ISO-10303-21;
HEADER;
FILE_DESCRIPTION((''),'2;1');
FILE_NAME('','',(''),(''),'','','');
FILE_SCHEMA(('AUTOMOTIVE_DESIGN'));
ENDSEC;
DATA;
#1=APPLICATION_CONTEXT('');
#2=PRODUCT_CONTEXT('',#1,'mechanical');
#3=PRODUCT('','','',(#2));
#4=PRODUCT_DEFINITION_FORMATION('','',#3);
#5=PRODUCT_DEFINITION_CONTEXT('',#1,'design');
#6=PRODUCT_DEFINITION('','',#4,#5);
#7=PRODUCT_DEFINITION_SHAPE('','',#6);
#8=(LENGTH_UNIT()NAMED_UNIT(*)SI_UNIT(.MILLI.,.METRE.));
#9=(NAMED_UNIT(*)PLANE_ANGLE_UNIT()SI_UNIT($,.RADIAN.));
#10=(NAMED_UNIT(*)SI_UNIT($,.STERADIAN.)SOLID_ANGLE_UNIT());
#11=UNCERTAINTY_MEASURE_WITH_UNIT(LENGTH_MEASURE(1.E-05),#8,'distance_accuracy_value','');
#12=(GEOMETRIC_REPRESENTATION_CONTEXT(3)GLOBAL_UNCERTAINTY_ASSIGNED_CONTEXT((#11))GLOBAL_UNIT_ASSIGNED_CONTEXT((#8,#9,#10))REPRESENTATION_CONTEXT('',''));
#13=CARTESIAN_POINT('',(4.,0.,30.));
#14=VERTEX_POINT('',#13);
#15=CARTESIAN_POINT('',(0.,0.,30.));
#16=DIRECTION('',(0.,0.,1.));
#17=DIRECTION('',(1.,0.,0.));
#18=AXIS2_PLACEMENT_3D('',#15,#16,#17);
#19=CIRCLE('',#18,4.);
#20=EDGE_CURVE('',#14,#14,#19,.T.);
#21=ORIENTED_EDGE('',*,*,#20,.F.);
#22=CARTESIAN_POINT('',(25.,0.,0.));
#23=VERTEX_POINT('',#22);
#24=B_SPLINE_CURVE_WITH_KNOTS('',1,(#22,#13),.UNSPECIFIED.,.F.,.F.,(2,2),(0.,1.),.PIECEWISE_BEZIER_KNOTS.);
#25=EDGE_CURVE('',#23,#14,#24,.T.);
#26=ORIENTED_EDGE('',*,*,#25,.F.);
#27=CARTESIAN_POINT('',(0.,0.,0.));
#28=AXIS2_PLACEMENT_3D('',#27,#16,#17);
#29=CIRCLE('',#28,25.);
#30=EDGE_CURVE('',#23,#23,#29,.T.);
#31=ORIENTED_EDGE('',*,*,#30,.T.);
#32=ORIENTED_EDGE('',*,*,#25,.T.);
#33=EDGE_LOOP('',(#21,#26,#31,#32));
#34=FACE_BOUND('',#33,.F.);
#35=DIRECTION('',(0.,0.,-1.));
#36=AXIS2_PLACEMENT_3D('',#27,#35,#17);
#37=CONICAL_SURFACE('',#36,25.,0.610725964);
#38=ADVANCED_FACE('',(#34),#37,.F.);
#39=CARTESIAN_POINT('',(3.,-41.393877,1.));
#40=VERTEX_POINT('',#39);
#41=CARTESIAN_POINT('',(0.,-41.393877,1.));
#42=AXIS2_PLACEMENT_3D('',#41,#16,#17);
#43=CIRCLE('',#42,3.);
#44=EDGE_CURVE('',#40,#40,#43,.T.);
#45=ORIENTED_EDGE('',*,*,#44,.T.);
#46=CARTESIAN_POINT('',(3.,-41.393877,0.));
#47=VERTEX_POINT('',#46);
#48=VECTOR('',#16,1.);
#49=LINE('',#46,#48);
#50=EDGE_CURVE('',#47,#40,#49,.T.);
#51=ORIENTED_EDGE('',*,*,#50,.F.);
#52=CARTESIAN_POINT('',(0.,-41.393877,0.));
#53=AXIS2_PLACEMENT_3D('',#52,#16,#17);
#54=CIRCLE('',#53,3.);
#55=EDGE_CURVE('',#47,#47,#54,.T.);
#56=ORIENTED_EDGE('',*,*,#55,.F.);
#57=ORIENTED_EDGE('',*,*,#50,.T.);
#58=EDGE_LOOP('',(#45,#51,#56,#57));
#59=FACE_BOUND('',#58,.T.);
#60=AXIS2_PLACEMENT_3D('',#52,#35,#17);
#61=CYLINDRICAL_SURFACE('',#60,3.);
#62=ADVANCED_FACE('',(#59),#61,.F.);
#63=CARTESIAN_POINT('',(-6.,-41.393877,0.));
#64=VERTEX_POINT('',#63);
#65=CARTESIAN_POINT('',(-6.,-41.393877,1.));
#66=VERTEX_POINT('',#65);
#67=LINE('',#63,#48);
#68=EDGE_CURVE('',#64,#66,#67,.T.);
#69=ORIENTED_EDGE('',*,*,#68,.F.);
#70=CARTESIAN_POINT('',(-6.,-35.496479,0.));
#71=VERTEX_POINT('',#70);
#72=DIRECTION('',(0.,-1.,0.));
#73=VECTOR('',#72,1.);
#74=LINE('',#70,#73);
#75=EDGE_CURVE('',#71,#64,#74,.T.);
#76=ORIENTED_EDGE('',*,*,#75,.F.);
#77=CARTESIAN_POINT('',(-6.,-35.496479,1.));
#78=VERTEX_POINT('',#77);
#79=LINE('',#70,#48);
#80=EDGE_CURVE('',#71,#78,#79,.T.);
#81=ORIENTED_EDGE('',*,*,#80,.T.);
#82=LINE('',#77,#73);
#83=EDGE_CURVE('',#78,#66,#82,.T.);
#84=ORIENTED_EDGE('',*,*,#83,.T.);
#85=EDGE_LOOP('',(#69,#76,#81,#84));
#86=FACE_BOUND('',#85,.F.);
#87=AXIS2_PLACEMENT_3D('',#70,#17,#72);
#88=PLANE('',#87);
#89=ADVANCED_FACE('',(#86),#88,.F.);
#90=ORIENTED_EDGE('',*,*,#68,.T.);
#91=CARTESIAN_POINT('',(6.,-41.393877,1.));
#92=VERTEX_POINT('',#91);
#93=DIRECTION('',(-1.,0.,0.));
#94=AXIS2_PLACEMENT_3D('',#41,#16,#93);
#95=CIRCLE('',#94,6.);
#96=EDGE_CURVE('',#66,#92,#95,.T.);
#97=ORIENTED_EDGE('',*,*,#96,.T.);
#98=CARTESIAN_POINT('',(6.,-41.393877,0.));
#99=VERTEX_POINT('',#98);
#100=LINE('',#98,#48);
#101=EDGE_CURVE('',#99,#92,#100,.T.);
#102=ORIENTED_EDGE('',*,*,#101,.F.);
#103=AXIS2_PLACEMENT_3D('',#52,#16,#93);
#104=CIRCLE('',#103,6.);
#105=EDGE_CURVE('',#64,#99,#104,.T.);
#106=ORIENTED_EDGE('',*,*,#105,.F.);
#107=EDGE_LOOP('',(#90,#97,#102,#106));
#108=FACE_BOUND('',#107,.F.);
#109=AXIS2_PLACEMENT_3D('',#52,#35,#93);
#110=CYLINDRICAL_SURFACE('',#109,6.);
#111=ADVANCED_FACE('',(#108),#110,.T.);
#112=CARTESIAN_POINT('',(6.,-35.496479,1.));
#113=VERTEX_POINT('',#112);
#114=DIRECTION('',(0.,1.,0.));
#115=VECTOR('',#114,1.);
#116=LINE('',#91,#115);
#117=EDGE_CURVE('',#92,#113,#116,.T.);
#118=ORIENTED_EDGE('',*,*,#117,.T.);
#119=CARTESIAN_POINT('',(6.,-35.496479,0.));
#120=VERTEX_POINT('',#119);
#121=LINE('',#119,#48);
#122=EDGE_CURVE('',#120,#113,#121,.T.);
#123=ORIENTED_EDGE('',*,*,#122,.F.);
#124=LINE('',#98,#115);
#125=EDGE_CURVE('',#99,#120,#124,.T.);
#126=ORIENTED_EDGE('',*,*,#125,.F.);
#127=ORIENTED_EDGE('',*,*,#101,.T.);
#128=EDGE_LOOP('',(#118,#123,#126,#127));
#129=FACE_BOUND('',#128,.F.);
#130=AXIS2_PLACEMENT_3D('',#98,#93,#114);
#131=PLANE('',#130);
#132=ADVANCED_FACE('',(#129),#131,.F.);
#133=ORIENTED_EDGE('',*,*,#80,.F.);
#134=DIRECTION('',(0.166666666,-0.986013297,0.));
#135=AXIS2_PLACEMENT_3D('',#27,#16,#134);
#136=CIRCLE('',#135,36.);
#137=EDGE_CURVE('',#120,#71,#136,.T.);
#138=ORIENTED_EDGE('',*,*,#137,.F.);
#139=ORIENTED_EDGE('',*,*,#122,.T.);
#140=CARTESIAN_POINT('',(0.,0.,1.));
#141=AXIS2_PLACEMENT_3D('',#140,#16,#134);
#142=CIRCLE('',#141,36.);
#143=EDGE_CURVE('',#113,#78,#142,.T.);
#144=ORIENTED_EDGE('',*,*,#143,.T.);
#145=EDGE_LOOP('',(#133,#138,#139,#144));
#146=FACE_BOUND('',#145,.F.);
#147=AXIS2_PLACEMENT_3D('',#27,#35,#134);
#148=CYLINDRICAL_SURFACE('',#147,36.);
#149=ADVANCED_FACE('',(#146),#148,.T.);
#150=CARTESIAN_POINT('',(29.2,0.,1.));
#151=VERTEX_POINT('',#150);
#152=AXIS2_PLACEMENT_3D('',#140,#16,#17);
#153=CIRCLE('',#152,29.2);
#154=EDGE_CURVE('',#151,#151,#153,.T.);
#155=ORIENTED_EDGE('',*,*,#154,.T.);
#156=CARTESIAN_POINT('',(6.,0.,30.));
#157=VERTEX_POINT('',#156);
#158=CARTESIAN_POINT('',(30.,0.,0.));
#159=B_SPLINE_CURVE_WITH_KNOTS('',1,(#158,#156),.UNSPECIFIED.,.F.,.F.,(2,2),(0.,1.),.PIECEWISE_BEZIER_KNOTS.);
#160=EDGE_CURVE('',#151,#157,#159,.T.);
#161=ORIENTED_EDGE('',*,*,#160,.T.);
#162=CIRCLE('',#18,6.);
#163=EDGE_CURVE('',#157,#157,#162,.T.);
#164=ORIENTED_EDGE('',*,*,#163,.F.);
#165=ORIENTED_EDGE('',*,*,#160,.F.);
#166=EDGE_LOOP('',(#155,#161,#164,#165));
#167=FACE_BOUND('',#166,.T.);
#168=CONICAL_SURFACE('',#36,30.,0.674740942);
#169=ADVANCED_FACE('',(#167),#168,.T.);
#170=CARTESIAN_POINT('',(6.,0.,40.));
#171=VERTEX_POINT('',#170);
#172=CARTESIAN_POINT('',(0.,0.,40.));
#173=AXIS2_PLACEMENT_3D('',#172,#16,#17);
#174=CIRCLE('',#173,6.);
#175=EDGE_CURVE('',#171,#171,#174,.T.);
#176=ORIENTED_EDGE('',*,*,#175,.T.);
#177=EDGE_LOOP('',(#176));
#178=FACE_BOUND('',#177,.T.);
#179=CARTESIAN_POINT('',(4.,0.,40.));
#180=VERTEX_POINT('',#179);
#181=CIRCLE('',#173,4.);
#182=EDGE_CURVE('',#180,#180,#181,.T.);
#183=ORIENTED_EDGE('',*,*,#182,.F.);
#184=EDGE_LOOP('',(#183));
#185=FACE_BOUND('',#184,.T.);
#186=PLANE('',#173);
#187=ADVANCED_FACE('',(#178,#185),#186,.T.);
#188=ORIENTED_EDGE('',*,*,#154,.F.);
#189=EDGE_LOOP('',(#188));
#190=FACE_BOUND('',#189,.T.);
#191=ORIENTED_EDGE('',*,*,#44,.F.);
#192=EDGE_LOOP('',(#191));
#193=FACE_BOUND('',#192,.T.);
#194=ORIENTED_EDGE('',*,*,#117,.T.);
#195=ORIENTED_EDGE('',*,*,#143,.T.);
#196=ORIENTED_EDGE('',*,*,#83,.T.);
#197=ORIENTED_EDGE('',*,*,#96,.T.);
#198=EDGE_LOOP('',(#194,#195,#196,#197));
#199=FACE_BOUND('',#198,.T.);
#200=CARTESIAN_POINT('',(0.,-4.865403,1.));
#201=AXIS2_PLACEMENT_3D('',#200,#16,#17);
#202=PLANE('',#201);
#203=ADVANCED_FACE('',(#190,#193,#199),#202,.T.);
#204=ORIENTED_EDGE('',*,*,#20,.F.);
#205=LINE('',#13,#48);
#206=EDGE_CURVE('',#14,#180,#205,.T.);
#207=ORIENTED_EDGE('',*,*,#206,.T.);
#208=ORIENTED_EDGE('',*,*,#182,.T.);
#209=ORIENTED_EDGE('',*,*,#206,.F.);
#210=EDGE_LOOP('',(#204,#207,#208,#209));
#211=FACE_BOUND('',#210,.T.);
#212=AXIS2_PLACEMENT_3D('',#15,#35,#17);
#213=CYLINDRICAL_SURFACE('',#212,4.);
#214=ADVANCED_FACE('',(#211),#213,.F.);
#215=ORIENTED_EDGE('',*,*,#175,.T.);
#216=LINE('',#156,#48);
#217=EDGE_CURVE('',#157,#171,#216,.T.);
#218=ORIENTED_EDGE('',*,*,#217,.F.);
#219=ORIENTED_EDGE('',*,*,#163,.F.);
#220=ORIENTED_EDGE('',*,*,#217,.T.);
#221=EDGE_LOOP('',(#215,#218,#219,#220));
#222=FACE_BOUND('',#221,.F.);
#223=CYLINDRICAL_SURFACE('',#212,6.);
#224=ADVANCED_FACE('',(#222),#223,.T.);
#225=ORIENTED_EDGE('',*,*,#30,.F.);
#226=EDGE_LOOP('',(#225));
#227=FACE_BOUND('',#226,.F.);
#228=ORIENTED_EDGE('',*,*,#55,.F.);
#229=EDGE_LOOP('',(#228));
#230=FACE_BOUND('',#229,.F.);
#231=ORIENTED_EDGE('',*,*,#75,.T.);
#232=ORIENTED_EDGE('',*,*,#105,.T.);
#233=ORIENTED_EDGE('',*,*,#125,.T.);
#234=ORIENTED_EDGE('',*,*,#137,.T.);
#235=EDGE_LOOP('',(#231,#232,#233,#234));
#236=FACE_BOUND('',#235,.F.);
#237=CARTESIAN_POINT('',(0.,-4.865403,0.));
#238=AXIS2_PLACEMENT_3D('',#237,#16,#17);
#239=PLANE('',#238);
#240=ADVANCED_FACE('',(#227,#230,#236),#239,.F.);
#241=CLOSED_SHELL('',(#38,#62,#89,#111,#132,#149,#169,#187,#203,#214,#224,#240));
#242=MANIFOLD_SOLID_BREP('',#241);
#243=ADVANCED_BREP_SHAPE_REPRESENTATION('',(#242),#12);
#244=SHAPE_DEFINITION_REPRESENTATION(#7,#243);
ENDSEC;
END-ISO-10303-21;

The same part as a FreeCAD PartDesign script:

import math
import FreeCAD as App
import Part
import Sketcher

V = App.Vector
Q = App.Units.Quantity

doc = App.newDocument("Part")
body = doc.addObject("PartDesign::Body", "Body")

sketch1 = body.newObject("Sketcher::SketchObject", "Sketch")
sketch1.AttachmentSupport = (doc.getObject("XY_Plane"), [""])
sketch1.MapMode = "FlatFace"
sketch1.addGeometry(Part.Circle(V(0, 0, 0), V(0, 0, 1), 30), False)
sketch1.addConstraint(Sketcher.Constraint("Coincident", 0, 3, -1, 1))
sketch1.addConstraint(Sketcher.Constraint("Diameter", 0, Q("60 mm")))

sketch2 = body.newObject("Sketcher::SketchObject", "Sketch001")
sketch2.AttachmentSupport = (doc.getObject("XY_Plane"), [""])
sketch2.MapMode = "FlatFace"
sketch2.AttachmentOffset = App.Placement(V(0, 0, 30), App.Rotation())
sketch2.addGeometry(Part.Circle(V(0, 0, 0), V(0, 0, 1), 6), False)
sketch2.addConstraint(Sketcher.Constraint("Coincident", 0, 3, -1, 1))
sketch2.addConstraint(Sketcher.Constraint("Diameter", 0, Q("12 mm")))

additiveloft = body.newObject("PartDesign::AdditiveLoft", "AdditiveLoft")
additiveloft.Profile = sketch1
additiveloft.Sections = [sketch2]

sketch3 = body.newObject("Sketcher::SketchObject", "Sketch002")
sketch3.AttachmentSupport = (doc.getObject("XY_Plane"), [""])
sketch3.MapMode = "FlatFace"
sketch3.addGeometry(Part.Circle(V(0, 0, 0), V(0, 0, 1), 25), False)
sketch3.addConstraint(Sketcher.Constraint("Coincident", 0, 3, -1, 1))
sketch3.addConstraint(Sketcher.Constraint("Diameter", 0, Q("50 mm")))

sketch4 = body.newObject("Sketcher::SketchObject", "Sketch003")
sketch4.AttachmentSupport = (doc.getObject("XY_Plane"), [""])
sketch4.MapMode = "FlatFace"
sketch4.AttachmentOffset = App.Placement(V(0, 0, 30), App.Rotation())
sketch4.addGeometry(Part.Circle(V(0, 0, 0), V(0, 0, 1), 4), False)
sketch4.addConstraint(Sketcher.Constraint("Coincident", 0, 3, -1, 1))
sketch4.addConstraint(Sketcher.Constraint("Diameter", 0, Q("8 mm")))

subtractiveloft = body.newObject("PartDesign::SubtractiveLoft", "SubtractiveLoft")
subtractiveloft.Profile = sketch3
subtractiveloft.Sections = [sketch4]

sketch5 = body.newObject("Sketcher::SketchObject", "Sketch004")
sketch5.AttachmentSupport = (doc.getObject("XY_Plane"), [""])
sketch5.MapMode = "FlatFace"
sketch5.AttachmentOffset = App.Placement(V(0, 0, 30), App.Rotation())
sketch5.addGeometry(Part.Circle(V(0, 0, 0), V(0, 0, 1), 6), False)
sketch5.addGeometry(Part.Circle(V(0, 0, 0), V(0, 0, 1), 4), False)
sketch5.addConstraint(Sketcher.Constraint("Coincident", 0, 3, -1, 1))
sketch5.addConstraint(Sketcher.Constraint("Coincident", 1, 3, -1, 1))
sketch5.addConstraint(Sketcher.Constraint("Diameter", 0, Q("12 mm")))
sketch5.addConstraint(Sketcher.Constraint("Diameter", 1, Q("8 mm")))
pad1 = body.newObject("PartDesign::Pad", "Pad")
pad1.Profile = sketch5
pad1.Length = 10

sketch6 = body.newObject("Sketcher::SketchObject", "Sketch005")
sketch6.AttachmentSupport = (doc.getObject("XY_Plane"), [""])
sketch6.MapMode = "FlatFace"
sketch6.addGeometry(Part.ArcOfCircle(Part.Circle(V(0, 0, 0), V(0, 0, 1), 36), math.radians(-80.405932), math.radians(260.405932)), False)
sketch6.addGeometry(Part.LineSegment(V(-6, -35.496479, 0), V(-6, -41.393877, 0)), False)
sketch6.addGeometry(Part.ArcOfCircle(Part.Circle(V(0, -41.393877, 0), V(0, 0, 1), 6), math.radians(180), math.radians(360)), False)
sketch6.addGeometry(Part.LineSegment(V(6, -41.393877, 0), V(6, -35.496479, 0)), False)
sketch6.addGeometry(Part.Circle(V(0, -41.393877, 0), V(0, 0, 1), 3), False)
sketch6.addGeometry(Part.Circle(V(0, 0, 0), V(0, 0, 1), 27), False)
sketch6.addConstraint(Sketcher.Constraint("Coincident", 0, 2, 1, 1))
sketch6.addConstraint(Sketcher.Constraint("Tangent", 1, 2, 2, 1))
sketch6.addConstraint(Sketcher.Constraint("Tangent", 2, 2, 3, 1))
sketch6.addConstraint(Sketcher.Constraint("Coincident", 3, 2, 0, 1))
sketch6.addConstraint(Sketcher.Constraint("Vertical", 1))
sketch6.addConstraint(Sketcher.Constraint("Vertical", 3))
sketch6.addConstraint(Sketcher.Constraint("Coincident", 0, 3, -1, 1))
sketch6.addConstraint(Sketcher.Constraint("Coincident", 5, 3, -1, 1))
sketch6.addConstraint(Sketcher.Constraint("Coincident", 4, 3, 2, 3))
sketch6.addConstraint(Sketcher.Constraint("PointOnObject", 2, 3, -2))
sketch6.addConstraint(Sketcher.Constraint("Diameter", 4, Q("6 mm")))
sketch6.addConstraint(Sketcher.Constraint("Diameter", 5, Q("54 mm")))
sketch6.addConstraint(Sketcher.Constraint("Radius", 0, Q("36 mm")))
sketch6.addConstraint(Sketcher.Constraint("Radius", 2, Q("6 mm")))
sketch6.addConstraint(Sketcher.Constraint("DistanceY", 1, 2, 1, 1, Q("5.897398 mm")))
pad2 = body.newObject("PartDesign::Pad", "Pad001")
pad2.Profile = sketch6
pad2.Length = 1

doc.recompute()
